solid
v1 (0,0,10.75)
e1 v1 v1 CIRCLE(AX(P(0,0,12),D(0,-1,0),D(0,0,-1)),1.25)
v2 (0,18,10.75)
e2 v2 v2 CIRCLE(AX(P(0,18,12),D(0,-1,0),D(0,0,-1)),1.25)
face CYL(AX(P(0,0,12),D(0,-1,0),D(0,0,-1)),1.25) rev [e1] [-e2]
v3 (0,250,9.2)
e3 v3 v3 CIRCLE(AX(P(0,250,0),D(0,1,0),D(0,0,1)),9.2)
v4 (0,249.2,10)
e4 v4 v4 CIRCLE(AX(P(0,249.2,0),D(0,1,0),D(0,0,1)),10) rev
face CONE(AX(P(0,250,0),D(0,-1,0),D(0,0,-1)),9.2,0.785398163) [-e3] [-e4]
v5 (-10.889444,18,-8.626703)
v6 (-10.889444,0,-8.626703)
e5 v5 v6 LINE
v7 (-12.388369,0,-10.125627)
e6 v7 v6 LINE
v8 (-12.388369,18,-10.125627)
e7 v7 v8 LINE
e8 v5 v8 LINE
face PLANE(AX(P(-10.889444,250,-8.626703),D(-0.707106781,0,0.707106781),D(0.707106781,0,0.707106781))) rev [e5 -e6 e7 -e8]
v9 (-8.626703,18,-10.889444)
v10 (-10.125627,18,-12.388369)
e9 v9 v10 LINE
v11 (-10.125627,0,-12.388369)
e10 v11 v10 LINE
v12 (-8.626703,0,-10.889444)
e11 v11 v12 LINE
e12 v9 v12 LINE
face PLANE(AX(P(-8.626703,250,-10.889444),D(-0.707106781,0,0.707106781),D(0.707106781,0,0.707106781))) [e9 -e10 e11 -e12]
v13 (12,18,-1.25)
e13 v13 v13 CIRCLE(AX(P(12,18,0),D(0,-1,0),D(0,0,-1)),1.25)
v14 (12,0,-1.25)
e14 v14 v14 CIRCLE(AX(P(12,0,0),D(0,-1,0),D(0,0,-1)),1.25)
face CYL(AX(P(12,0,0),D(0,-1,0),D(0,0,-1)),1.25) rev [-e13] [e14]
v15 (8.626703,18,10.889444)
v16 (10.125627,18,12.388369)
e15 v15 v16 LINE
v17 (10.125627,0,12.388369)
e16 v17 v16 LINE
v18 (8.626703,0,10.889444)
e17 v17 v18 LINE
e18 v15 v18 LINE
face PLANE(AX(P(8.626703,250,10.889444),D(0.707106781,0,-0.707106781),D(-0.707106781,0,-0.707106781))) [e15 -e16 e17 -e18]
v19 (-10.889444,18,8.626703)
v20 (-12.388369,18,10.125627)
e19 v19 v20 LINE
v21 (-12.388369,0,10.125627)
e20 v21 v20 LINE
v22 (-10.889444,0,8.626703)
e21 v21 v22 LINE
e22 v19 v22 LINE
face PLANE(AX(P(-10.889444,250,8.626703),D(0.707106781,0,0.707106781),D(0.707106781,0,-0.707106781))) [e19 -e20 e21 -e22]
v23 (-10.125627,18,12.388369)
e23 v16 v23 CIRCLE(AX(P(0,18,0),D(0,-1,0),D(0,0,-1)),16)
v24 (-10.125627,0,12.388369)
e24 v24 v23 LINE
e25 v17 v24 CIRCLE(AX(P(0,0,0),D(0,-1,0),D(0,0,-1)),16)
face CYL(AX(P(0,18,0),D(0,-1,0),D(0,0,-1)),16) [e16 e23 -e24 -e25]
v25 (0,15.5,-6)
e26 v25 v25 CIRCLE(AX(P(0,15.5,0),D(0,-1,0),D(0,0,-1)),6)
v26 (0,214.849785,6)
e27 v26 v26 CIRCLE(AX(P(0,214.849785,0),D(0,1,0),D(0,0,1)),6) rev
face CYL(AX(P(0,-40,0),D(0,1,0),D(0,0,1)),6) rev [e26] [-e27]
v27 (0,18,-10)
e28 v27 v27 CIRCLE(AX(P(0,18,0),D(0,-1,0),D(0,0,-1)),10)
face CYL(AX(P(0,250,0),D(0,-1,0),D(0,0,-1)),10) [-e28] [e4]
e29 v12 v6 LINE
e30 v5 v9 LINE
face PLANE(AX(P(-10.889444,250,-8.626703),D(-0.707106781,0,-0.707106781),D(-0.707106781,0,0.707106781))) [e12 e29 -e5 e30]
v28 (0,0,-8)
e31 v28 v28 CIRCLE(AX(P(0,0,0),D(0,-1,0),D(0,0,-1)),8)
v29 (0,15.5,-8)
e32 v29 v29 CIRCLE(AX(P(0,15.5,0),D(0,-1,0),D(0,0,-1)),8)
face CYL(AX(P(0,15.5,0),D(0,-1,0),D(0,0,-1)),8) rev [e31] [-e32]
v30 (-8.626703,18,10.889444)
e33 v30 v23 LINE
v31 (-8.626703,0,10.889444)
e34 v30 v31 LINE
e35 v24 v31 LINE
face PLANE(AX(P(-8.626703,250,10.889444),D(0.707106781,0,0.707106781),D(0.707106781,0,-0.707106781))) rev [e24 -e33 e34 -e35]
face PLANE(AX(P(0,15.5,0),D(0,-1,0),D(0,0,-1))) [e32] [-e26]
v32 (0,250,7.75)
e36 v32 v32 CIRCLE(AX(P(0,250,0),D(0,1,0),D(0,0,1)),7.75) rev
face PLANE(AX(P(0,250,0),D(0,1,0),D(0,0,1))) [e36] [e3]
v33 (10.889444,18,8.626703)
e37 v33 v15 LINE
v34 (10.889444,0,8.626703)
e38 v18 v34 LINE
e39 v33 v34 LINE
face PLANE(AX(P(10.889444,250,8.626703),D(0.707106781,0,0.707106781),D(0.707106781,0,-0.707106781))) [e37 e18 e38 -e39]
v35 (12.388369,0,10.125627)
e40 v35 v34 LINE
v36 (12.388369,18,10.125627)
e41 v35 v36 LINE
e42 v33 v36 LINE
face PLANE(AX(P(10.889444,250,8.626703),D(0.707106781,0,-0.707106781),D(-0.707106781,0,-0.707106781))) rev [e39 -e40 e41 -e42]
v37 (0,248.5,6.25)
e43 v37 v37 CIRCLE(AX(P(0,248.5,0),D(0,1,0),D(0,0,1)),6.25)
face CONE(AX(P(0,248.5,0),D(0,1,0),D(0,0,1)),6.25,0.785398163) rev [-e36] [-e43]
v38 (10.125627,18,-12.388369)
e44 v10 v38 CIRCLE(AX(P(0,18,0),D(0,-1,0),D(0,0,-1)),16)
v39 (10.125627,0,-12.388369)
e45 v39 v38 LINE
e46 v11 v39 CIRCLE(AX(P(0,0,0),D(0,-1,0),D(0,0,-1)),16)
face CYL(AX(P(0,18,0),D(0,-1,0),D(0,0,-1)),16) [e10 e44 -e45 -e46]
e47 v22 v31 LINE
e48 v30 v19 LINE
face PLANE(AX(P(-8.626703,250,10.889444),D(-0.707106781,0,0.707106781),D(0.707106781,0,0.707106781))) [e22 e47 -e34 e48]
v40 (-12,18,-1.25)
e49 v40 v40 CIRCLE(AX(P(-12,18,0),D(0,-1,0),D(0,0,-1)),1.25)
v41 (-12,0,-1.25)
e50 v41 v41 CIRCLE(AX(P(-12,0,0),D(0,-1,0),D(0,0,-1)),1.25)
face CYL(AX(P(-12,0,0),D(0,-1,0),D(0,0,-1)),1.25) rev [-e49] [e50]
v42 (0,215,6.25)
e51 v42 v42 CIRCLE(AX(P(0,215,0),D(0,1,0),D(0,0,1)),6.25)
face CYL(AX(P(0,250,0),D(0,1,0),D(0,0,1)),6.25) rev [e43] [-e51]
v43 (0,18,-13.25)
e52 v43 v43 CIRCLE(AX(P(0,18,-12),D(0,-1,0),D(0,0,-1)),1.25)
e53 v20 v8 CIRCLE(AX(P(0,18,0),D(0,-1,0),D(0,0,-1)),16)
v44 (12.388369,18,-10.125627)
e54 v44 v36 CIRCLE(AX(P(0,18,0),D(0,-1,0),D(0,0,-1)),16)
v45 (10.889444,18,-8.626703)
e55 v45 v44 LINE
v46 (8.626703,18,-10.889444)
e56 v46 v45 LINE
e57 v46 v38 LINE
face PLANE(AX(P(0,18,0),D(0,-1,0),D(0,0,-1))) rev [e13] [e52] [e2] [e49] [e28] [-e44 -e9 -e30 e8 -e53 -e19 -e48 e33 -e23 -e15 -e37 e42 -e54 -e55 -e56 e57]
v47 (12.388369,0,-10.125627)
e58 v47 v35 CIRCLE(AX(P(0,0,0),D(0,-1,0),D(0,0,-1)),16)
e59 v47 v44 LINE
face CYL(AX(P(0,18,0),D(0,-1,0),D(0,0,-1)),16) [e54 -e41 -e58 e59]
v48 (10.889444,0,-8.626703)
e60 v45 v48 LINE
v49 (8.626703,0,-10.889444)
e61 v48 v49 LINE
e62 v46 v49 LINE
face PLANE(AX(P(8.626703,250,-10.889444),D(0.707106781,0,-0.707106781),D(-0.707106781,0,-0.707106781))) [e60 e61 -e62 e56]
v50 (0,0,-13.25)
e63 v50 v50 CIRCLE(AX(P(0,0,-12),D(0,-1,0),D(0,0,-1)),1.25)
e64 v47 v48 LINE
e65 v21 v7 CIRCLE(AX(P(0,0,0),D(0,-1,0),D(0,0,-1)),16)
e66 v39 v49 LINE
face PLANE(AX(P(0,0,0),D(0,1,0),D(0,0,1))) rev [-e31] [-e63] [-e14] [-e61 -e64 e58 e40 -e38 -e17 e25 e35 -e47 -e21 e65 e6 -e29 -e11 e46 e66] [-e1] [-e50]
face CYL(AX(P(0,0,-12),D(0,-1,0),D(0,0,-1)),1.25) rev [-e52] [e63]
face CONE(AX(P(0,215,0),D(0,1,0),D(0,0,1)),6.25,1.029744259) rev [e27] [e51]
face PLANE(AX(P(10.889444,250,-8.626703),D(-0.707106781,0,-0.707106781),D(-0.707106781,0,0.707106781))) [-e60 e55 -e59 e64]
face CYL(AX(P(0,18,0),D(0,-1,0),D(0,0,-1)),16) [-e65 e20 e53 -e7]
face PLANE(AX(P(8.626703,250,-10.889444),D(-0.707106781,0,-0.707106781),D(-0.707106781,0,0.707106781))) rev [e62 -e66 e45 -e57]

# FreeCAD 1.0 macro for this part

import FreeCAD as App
import Part
import Sketcher
from FreeCAD import Vector
Q = App.Units.Quantity


def edges_at(feature, points):
    """Names of the edges that pass closest to the given points."""
    edges = feature.Shape.Edges
    near = lambda p: min(range(len(edges)), key=lambda i: edges[i].distToShape(Part.Vertex(*p))[0])
    return sorted({f"Edge{near(p) + 1}" for p in points})


def add_polygon(sketch, points):
    """Adds a closed chain of lines whose ends are joined by coincident constraints."""
    first, n = sketch.GeometryCount, len(points)
    for a, b in zip(points, points[1:] + points[:1]):
        sketch.addGeometry(Part.LineSegment(App.Vector(*a, 0), App.Vector(*b, 0)), False)
    for i in range(n):
        sketch.addConstraint(Sketcher.Constraint("Coincident", first + i, 2, first + (i + 1) % n, 1))

doc = App.newDocument("Part")
params = doc.addObject("Spreadsheet::Sheet", "Params")
for row, (alias, value) in enumerate([
    ("sketch1_diameter", "20 mm"),
    ("pad1_length", "250 mm"),
    ("sketch2_diameter", "32 mm"),
    ("pad2_length", "18 mm"),
    ("sketch3_diameter", "12 mm"),
    ("pocket1_length", "260 mm"),
    ("sketch4_diameter", "12.5 mm"),
    ("hole_diameter", "12.5 mm"),
    ("hole_depth", "35 mm"),
    ("chamfer_size", "1.5 mm"),
    ("sketch5_diameter", "16 mm"),
    ("pocket2_length", "15.5 mm"),
    ("sketch6_diameter", "2.5 mm"),
    ("hole2_diameter", "2.5 mm"),
    ("hole2_depth", "25 mm"),
    ("sketch7_length", "2.2 mm"),
    ("sketch7_length2", "3.2 mm"),
    ("pocket3_length", "504.043823 mm"),
    ("chamfer2_size", "0.8 mm"),
], start=1):
    params.set(f"A{row}", alias)
    params.set(f"B{row}", "=" + value)
    params.setAlias(f"B{row}", alias)

body = doc.addObject("PartDesign::Body", "Body")

# Sketch on XZ plane
sketch1 = body.newObject("Sketcher::SketchObject", "Sketch")
sketch1.AttachmentSupport = (doc.getObject("XZ_Plane"), [""])
sketch1.MapMode = "FlatFace"
sketch1.addGeometry(Part.Circle(Vector(0, 0, 0), Vector(0, 0, 1), 10), False)
sketch1.addConstraint([
    Sketcher.Constraint("Coincident", 0, 3, -1, 1),
    Sketcher.Constraint("Diameter", 0, 20.0),
])
sketch1.setExpression("Constraints[1]", "Params.sketch1_diameter")
pad1 = body.newObject("PartDesign::Pad", "Pad")
pad1.Profile = sketch1
pad1.setExpression("Length", "Params.pad1_length")
pad1.Reversed = True

# Sketch on XZ plane
sketch2 = body.newObject("Sketcher::SketchObject", "Sketch001")
sketch2.AttachmentSupport = (doc.getObject("XZ_Plane"), [""])
sketch2.MapMode = "FlatFace"
sketch2.addGeometry(Part.Circle(Vector(0, 0, 0), Vector(0, 0, 1), 16), False)
sketch2.addConstraint([
    Sketcher.Constraint("Coincident", 0, 3, -1, 1),
    Sketcher.Constraint("Diameter", 0, 32.0),
])
sketch2.setExpression("Constraints[1]", "Params.sketch2_diameter")
pad2 = body.newObject("PartDesign::Pad", "Pad001")
pad2.Profile = sketch2
pad2.setExpression("Length", "Params.pad2_length")
pad2.Reversed = True

# Sketch on XZ plane
sketch3 = body.newObject("Sketcher::SketchObject", "Sketch002")
sketch3.AttachmentSupport = (doc.getObject("XZ_Plane"), [""])
sketch3.MapMode = "FlatFace"
sketch3.AttachmentOffset = App.Placement(Vector(0, 0, -220), App.Rotation())
sketch3.addGeometry(Part.Circle(Vector(0, 0, 0), Vector(0, 0, 1), 6), False)
sketch3.addConstraint([
    Sketcher.Constraint("Coincident", 0, 3, -1, 1),
    Sketcher.Constraint("Diameter", 0, 12.0),
])
sketch3.setExpression("Constraints[1]", "Params.sketch3_diameter")
pocket1 = body.newObject("PartDesign::Pocket", "Pocket")
pocket1.Profile = sketch3
pocket1.setExpression("Length", "Params.pocket1_length")
pocket1.Reversed = True

# Sketch on XZ plane
sketch4 = body.newObject("Sketcher::SketchObject", "Sketch003")
sketch4.AttachmentSupport = (doc.getObject("XZ_Plane"), [""])
sketch4.MapMode = "FlatFace"
sketch4.AttachmentOffset = App.Placement(Vector(0, 0, -250), App.Rotation())
sketch4.addGeometry(Part.Circle(Vector(0, 0, 0), Vector(0, 0, 1), 6), False)
sketch4.addConstraint([
    Sketcher.Constraint("Coincident", 0, 3, -1, 1),
    Sketcher.Constraint("Diameter", 0, 12.5),
])
sketch4.setExpression("Constraints[1]", "Params.sketch4_diameter")
doc.recompute()
hole = body.newObject("PartDesign::Hole", "Hole")
hole.Profile = sketch4
hole.ThreadType = "None"
hole.setExpression("Diameter", "Params.hole_diameter")
hole.DepthType = "Dimension"
hole.setExpression("Depth", "Params.hole_depth")
hole.DrillPoint = "Angled"
hole.DrillPointAngle = 118
hole.Reversed = True
doc.recompute()

chamfer = body.newObject("PartDesign::Chamfer", "Chamfer")
chamfer.Base = (hole, edges_at(hole, [(6.25, 250, 0)]))
chamfer.setExpression("Size", "Params.chamfer_size")

# Sketch on XZ plane
sketch5 = body.newObject("Sketcher::SketchObject", "Sketch004")
sketch5.AttachmentSupport = (doc.getObject("XZ_Plane"), [""])
sketch5.MapMode = "FlatFace"
sketch5.addGeometry(Part.Circle(Vector(0, 0, 0), Vector(0, 0, 1), 8), False)
sketch5.addConstraint([
    Sketcher.Constraint("Coincident", 0, 3, -1, 1),
    Sketcher.Constraint("Diameter", 0, 16.0),
])
sketch5.setExpression("Constraints[1]", "Params.sketch5_diameter")
pocket2 = body.newObject("PartDesign::Pocket", "Pocket001")
pocket2.Profile = sketch5
pocket2.setExpression("Length", "Params.pocket2_length")

# Sketch on XZ plane
sketch6 = body.newObject("Sketcher::SketchObject", "Sketch005")
sketch6.AttachmentSupport = (doc.getObject("XZ_Plane"), [""])
sketch6.MapMode = "FlatFace"
sketch6.addGeometry([
    Part.Circle(Vector(0, -12, 0), Vector(0, 0, 1), 1.2),
    Part.Circle(Vector(-12, 0, 0), Vector(0, 0, 1), 1.2),
    Part.Circle(Vector(0, 12, 0), Vector(0, 0, 1), 1.2),
    Part.Circle(Vector(12, 0, 0), Vector(0, 0, 1), 1.2),
], False)
sketch6.addConstraint([
    Sketcher.Constraint("Equal", 0, 1),
    Sketcher.Constraint("Equal", 1, 2),
    Sketcher.Constraint("Equal", 2, 3),
    Sketcher.Constraint("Symmetric", 0, 3, 2, 3, -1, 1),
    Sketcher.Constraint("Symmetric", 1, 3, 3, 3, -1, 1),
    Sketcher.Constraint("PointOnObject", 0, 3, -2),
    Sketcher.Constraint("PointOnObject", 1, 3, -1),
    Sketcher.Constraint("Diameter", 0, 2.5),
    Sketcher.Constraint("DistanceY", 0, 3, -1, 1, 12.0),
    Sketcher.Constraint("DistanceX", 1, 3, -1, 1, 12.0),
])
sketch6.setExpression("Constraints[7]", "Params.sketch6_diameter")
doc.recompute()
hole2 = body.newObject("PartDesign::Hole", "Hole001")
hole2.Profile = sketch6
hole2.ThreadType = "None"
hole2.setExpression("Diameter", "Params.hole2_diameter")
hole2.DepthType = "Dimension"
hole2.setExpression("Depth", "Params.hole2_depth")
hole2.DrillPoint = "Angled"
hole2.DrillPointAngle = 118

# Sketch on XZ plane
sketch7 = body.newObject("Sketcher::SketchObject", "Sketch006")
sketch7.AttachmentSupport = (doc.getObject("XZ_Plane"), [""])
sketch7.MapMode = "FlatFace"
add_polygon(sketch7, [(-8.6, 10.9), (-10.2, 12.4), (-12.4, 10.2), (-10.9, 8.6)])  # lines 0-3
sketch7.addConstraint([
    Sketcher.Constraint("Perpendicular", 0, 1),
    Sketcher.Constraint("Perpendicular", 1, 2),
    Sketcher.Constraint("Perpendicular", 2, 3),
    Sketcher.Constraint("Angle", 0, Q("135 deg")),
    Sketcher.Constraint("Distance", 0, 2.2),
    Sketcher.Constraint("Distance", 1, 3.2),
    Sketcher.Constraint("DistanceY", -1, 1, 0, 2, 12.445079),
    Sketcher.Constraint("DistanceX", 1, 2, -1, 1, 12.445079),
])
sketch7.setExpression("Constraints[8]", "Params.sketch7_length")
sketch7.setExpression("Constraints[9]", "Params.sketch7_length2")
pocket3 = body.newObject("PartDesign::Pocket", "Pocket002")
pocket3.Profile = sketch7
pocket3.setExpression("Length", "Params.pocket3_length")
pocket3.Midplane = True
doc.recompute()

polarpattern = body.newObject("PartDesign::PolarPattern", "PolarPattern")
polarpattern.Originals = [pocket3]
polarpattern.Axis = (doc.getObject("Y_Axis"), [""])
polarpattern.Angle = 360
polarpattern.Occurrences = 4
body.Tip = polarpattern
doc.recompute()

chamfer2 = body.newObject("PartDesign::Chamfer", "Chamfer001")
chamfer2.Base = (polarpattern, edges_at(polarpattern, [(0, 250, -10)]))
chamfer2.setExpression("Size", "Params.chamfer2_size")

doc.recompute()
